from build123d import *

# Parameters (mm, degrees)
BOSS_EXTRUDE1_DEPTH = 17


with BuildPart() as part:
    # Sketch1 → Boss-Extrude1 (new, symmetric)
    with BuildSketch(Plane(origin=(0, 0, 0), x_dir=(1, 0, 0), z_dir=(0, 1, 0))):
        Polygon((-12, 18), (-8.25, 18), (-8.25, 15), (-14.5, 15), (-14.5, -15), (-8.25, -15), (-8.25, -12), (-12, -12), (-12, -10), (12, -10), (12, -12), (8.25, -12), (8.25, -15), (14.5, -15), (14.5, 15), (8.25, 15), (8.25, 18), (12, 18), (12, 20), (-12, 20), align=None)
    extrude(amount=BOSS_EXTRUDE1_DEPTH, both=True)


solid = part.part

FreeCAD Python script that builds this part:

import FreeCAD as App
import Part
import Sketcher

V = App.Vector
Q = App.Units.Quantity


def add_polygon(sketch, points):
    """Adds a closed chain of lines whose ends are joined by coincident constraints."""
    first, n = sketch.GeometryCount, len(points)
    for a, b in zip(points, points[1:] + points[:1]):
        sketch.addGeometry(Part.LineSegment(App.Vector(*a, 0), App.Vector(*b, 0)), False)
    for i in range(n):
        sketch.addConstraint(Sketcher.Constraint("Coincident", first + i, 2, first + (i + 1) % n, 1))

doc = App.newDocument("Part")
params = doc.addObject("Spreadsheet::Sheet", "Params")
for row, (alias, value) in enumerate([
    ("sketch1_width", "24 mm"),
    ("sketch1_height", "3 mm"),
    ("sketch1_height2", "30 mm"),
    ("sketch1_height3", "2 mm"),
    ("sketch1_width2", "3.75 mm"),
    ("pad1_length", "34 mm"),
], start=1):
    params.set(f"A{row}", alias)
    params.set(f"B{row}", "=" + value)
    params.setAlias(f"B{row}", alias)

body = doc.addObject("PartDesign::Body", "Body")

sketch1 = body.newObject("Sketcher::SketchObject", "Sketch")
sketch1.AttachmentSupport = (doc.getObject("XZ_Plane"), [""])
sketch1.MapMode = "FlatFace"
add_polygon(sketch1, [(-12, -18), (-8.2, -18), (-8.2, -15), (-14.5, -15), (-14.5, 15), (-8.2, 15), (-8.2, 12), (-12, 12), (-12, 10), (12, 10), (12, 12), (8.2, 12), (8.2, 15), (14.5, 15), (14.5, -15), (8.2, -15), (8.2, -18), (12, -18), (12, -20), (-12, -20)])
sketch1.addConstraint([
    Sketcher.Constraint("Horizontal", 0),
    Sketcher.Constraint("Vertical", 1),
    Sketcher.Constraint("Horizontal", 2),
    Sketcher.Constraint("Vertical", 3),
    Sketcher.Constraint("Horizontal", 4),
    Sketcher.Constraint("Vertical", 5),
    Sketcher.Constraint("Horizontal", 6),
    Sketcher.Constraint("Vertical", 7),
    Sketcher.Constraint("Horizontal", 8),
    Sketcher.Constraint("Vertical", 9),
    Sketcher.Constraint("Horizontal", 10),
    Sketcher.Constraint("Vertical", 11),
    Sketcher.Constraint("Horizontal", 12),
    Sketcher.Constraint("Vertical", 13),
    Sketcher.Constraint("Horizontal", 14),
    Sketcher.Constraint("Vertical", 15),
    Sketcher.Constraint("Horizontal", 16),
    Sketcher.Constraint("Vertical", 17),
    Sketcher.Constraint("Horizontal", 18),
    Sketcher.Constraint("Vertical", 19),
    Sketcher.Constraint("Symmetric", 1, 2, 11, 2, -1, 1),
    Sketcher.Constraint("Symmetric", 3, 2, 13, 2, -1, 1),
    Sketcher.Constraint("Symmetric", 6, 2, 9, 2, -2),
    Sketcher.Constraint("Symmetric", 4, 2, 11, 2, -2),
    Sketcher.Constraint("Symmetric", 0, 2, 15, 2, -2),
    Sketcher.Constraint("Vertical", 9, 2, 16, 2),
    Sketcher.Constraint("Vertical", 7, 2, 18, 2),
    Sketcher.Constraint("Equal", 1, 5),
    Sketcher.Constraint("Equal", 9, 17),
    Sketcher.Constraint("DistanceX", 8, 1, 8, 2, Q("24 mm")),
    Sketcher.Constraint("DistanceY", 1, 1, 1, 2, Q("3 mm")),
    Sketcher.Constraint("DistanceY", 3, 1, 3, 2, Q("30 mm")),
    Sketcher.Constraint("DistanceY", 7, 2, 7, 1, Q("2 mm")),
    Sketcher.Constraint("DistanceX", 0, 1, 0, 2, Q("3.75 mm")),
    Sketcher.Constraint("DistanceX", 2, 2, 2, 1, Q("6.25 mm")),
])
sketch1.setExpression("Constraints[49]", "Params.sketch1_width")
sketch1.setExpression("Constraints[50]", "Params.sketch1_height")
sketch1.setExpression("Constraints[51]", "Params.sketch1_height2")
sketch1.setExpression("Constraints[52]", "Params.sketch1_height3")
sketch1.setExpression("Constraints[53]", "Params.sketch1_width2")
pad1 = body.newObject("PartDesign::Pad", "Pad")
pad1.Profile = sketch1
pad1.setExpression("Length", "Params.pad1_length")
pad1.Midplane = True

doc.recompute()
